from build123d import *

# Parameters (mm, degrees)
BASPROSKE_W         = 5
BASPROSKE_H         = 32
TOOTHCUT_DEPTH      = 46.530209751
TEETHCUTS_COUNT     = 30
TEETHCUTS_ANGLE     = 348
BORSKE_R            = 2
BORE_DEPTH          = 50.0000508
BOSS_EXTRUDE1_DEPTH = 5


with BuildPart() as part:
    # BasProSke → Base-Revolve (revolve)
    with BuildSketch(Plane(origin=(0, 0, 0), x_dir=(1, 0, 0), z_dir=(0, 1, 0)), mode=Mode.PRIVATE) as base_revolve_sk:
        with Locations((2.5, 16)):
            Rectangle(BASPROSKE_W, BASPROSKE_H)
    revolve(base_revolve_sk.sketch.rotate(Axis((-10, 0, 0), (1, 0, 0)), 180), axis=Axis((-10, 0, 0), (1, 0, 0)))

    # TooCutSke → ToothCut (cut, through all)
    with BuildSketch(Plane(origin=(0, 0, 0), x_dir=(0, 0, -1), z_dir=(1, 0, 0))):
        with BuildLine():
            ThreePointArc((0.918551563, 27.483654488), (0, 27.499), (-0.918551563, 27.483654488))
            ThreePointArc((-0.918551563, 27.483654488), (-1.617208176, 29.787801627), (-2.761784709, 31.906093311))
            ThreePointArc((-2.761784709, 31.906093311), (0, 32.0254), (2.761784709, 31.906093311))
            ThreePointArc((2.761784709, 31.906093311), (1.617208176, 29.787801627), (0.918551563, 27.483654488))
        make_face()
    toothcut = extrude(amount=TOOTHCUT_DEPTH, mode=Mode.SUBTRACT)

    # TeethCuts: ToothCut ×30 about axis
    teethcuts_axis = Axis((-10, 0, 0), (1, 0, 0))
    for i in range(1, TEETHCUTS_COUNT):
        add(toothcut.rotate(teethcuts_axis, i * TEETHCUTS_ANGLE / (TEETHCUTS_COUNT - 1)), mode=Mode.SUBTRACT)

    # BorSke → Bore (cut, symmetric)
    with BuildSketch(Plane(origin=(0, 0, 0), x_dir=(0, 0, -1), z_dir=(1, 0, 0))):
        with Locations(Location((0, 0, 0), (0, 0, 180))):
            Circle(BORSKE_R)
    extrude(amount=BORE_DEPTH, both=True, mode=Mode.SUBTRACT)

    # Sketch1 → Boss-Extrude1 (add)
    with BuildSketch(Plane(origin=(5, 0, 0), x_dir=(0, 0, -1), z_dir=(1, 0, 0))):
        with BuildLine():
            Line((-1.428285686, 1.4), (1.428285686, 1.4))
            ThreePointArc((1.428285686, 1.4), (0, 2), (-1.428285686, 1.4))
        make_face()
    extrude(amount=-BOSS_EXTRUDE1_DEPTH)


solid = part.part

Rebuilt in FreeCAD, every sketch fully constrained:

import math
import FreeCAD as App
import Part
import Sketcher

V = App.Vector
Q = App.Units.Quantity


def add_polygon(sketch, points):
    """Adds a closed chain of lines whose ends are joined by coincident constraints."""
    first, n = sketch.GeometryCount, len(points)
    for a, b in zip(points, points[1:] + points[:1]):
        sketch.addGeometry(Part.LineSegment(App.Vector(*a, 0), App.Vector(*b, 0)), False)
    for i in range(n):
        sketch.addConstraint(Sketcher.Constraint("Coincident", first + i, 2, first + (i + 1) % n, 1))

doc = App.newDocument("Part")
body = doc.addObject("PartDesign::Body", "Body")

# Sketch on XZ plane
sketch1 = doc.addObject("Sketcher::SketchObject", "Sketch")
body.addObject(sketch1)
sketch1.AttachmentSupport = (doc.XZ_Plane, [""])
sketch1.MapMode = "FlatFace"
add_polygon(sketch1, [(0, -32), (0, 0), (5, 0), (5, -32)])  # lines 0-3
sketch1.addConstraint([
    Sketcher.Constraint("Vertical", 0),
    Sketcher.Constraint("Horizontal", 1),
    Sketcher.Constraint("Vertical", 2),
    Sketcher.Constraint("Horizontal", 3),
    Sketcher.Constraint("Coincident", 0, 2, -1, 1),
    Sketcher.Constraint("DistanceX", 1, 1, 1, 2, Q("5 mm")),
    Sketcher.Constraint("DistanceY", 0, 1, 0, 2, Q("32 mm")),
])
revolution = doc.addObject("PartDesign::Revolution", "Revolution")
body.addObject(revolution)
revolution.Profile = sketch1
revolution.ReferenceAxis = (sketch1, ["H_Axis"])
revolution.Angle = 360

# Sketch on YZ plane
sketch2 = doc.addObject("Sketcher::SketchObject", "Sketch001")
body.addObject(sketch2)
sketch2.AttachmentSupport = (doc.YZ_Plane, [""])
sketch2.MapMode = "FlatFace"
sketch2.addGeometry([
    Part.ArcOfCircle(Part.Circle(V(0, 0, 0), V(0, 0, 1), 27.5), math.radians(-1.91), math.radians(1.91)),
    Part.ArcOfCircle(Part.Circle(V(25.2, -12.7, 0), V(0, 0, 1), 12), math.radians(56), math.radians(79)),
    Part.ArcOfCircle(Part.Circle(V(0, 0, 0), V(0, 0, 1), 32), math.radians(-4.95), math.radians(4.95)),
    Part.ArcOfCircle(Part.Circle(V(25.2, 12.7, 0), V(0, 0, 1), 12), math.radians(-79), math.radians(-56)),
], False)
sketch2.addConstraint([
    Sketcher.Constraint("Coincident", 0, 1, 1, 2),
    Sketcher.Constraint("Coincident", 1, 1, 2, 1),
    Sketcher.Constraint("Coincident", 2, 2, 3, 2),
    Sketcher.Constraint("Coincident", 3, 1, 0, 2),
    Sketcher.Constraint("Coincident", 0, 3, -1, 1),
    Sketcher.Constraint("Coincident", 2, 3, -1, 1),
    Sketcher.Constraint("Equal", 1, 3),
    Sketcher.Constraint("Symmetric", 1, 3, 3, 3, -1),
    Sketcher.Constraint("Radius", 1, Q("12 mm")),
    Sketcher.Constraint("Radius", 0, Q("27.499 mm")),
    Sketcher.Constraint("Radius", 2, Q("32.0254 mm")),
    Sketcher.Constraint("DistanceY", 1, 3, -1, 1, Q("12.693642 mm")),
    Sketcher.Constraint("DistanceY", 0, 1, -1, 1, Q("0.918552 mm")),
])
pocket1 = doc.addObject("PartDesign::Pocket", "Pocket")
body.addObject(pocket1)
pocket1.Profile = sketch2
pocket1.Type = "ThroughAll"
pocket1.Reversed = True
doc.recompute()

polarpattern = doc.addObject("PartDesign::PolarPattern", "PolarPattern")
body.addObject(polarpattern)
polarpattern.Originals = [pocket1]
polarpattern.Axis = (doc.X_Axis, [""])
polarpattern.Angle = 360
polarpattern.Occurrences = 30
body.Tip = polarpattern

# Sketch on YZ plane
sketch3 = doc.addObject("Sketcher::SketchObject", "Sketch002")
body.addObject(sketch3)
sketch3.AttachmentSupport = (doc.YZ_Plane, [""])
sketch3.MapMode = "FlatFace"
sketch3.addGeometry(Part.Circle(V(0, 0, 0), V(0, 0, 1), 2), False)
sketch3.addConstraint([
    Sketcher.Constraint("Coincident", 0, 3, -1, 1),
    Sketcher.Constraint("Diameter", 0, Q("4 mm")),
])
pocket2 = doc.addObject("PartDesign::Pocket", "Pocket001")
body.addObject(pocket2)
pocket2.Profile = sketch3
pocket2.Length = 100.000102
pocket2.Midplane = True

# Sketch on YZ plane
sketch4 = doc.addObject("Sketcher::SketchObject", "Sketch003")
body.addObject(sketch4)
sketch4.AttachmentSupport = (doc.YZ_Plane, [""])
sketch4.MapMode = "FlatFace"
sketch4.AttachmentOffset = App.Placement(V(0, 0, 5), App.Rotation())
sketch4.addGeometry([
    Part.LineSegment(V(1.4, 1.4, 0), V(1.4, -1.4, 0)),
    Part.ArcOfCircle(Part.Circle(V(0, 0, 0), V(0, 0, 1), 2), math.radians(-46), math.radians(46)),
], False)
sketch4.addConstraint([
    Sketcher.Constraint("Coincident", 0, 1, 1, 2),
    Sketcher.Constraint("Coincident", 1, 1, 0, 2),
    Sketcher.Constraint("Vertical", 0),
    Sketcher.Constraint("Coincident", 1, 3, -1, 1),
    Sketcher.Constraint("Radius", 1, Q("2 mm")),
    Sketcher.Constraint("DistanceX", -1, 1, 0, 1, Q("1.4 mm")),
])
pad1 = doc.addObject("PartDesign::Pad", "Pad")
body.addObject(pad1)
pad1.Profile = sketch4
pad1.Length = 5
pad1.Reversed = True

doc.recompute()
